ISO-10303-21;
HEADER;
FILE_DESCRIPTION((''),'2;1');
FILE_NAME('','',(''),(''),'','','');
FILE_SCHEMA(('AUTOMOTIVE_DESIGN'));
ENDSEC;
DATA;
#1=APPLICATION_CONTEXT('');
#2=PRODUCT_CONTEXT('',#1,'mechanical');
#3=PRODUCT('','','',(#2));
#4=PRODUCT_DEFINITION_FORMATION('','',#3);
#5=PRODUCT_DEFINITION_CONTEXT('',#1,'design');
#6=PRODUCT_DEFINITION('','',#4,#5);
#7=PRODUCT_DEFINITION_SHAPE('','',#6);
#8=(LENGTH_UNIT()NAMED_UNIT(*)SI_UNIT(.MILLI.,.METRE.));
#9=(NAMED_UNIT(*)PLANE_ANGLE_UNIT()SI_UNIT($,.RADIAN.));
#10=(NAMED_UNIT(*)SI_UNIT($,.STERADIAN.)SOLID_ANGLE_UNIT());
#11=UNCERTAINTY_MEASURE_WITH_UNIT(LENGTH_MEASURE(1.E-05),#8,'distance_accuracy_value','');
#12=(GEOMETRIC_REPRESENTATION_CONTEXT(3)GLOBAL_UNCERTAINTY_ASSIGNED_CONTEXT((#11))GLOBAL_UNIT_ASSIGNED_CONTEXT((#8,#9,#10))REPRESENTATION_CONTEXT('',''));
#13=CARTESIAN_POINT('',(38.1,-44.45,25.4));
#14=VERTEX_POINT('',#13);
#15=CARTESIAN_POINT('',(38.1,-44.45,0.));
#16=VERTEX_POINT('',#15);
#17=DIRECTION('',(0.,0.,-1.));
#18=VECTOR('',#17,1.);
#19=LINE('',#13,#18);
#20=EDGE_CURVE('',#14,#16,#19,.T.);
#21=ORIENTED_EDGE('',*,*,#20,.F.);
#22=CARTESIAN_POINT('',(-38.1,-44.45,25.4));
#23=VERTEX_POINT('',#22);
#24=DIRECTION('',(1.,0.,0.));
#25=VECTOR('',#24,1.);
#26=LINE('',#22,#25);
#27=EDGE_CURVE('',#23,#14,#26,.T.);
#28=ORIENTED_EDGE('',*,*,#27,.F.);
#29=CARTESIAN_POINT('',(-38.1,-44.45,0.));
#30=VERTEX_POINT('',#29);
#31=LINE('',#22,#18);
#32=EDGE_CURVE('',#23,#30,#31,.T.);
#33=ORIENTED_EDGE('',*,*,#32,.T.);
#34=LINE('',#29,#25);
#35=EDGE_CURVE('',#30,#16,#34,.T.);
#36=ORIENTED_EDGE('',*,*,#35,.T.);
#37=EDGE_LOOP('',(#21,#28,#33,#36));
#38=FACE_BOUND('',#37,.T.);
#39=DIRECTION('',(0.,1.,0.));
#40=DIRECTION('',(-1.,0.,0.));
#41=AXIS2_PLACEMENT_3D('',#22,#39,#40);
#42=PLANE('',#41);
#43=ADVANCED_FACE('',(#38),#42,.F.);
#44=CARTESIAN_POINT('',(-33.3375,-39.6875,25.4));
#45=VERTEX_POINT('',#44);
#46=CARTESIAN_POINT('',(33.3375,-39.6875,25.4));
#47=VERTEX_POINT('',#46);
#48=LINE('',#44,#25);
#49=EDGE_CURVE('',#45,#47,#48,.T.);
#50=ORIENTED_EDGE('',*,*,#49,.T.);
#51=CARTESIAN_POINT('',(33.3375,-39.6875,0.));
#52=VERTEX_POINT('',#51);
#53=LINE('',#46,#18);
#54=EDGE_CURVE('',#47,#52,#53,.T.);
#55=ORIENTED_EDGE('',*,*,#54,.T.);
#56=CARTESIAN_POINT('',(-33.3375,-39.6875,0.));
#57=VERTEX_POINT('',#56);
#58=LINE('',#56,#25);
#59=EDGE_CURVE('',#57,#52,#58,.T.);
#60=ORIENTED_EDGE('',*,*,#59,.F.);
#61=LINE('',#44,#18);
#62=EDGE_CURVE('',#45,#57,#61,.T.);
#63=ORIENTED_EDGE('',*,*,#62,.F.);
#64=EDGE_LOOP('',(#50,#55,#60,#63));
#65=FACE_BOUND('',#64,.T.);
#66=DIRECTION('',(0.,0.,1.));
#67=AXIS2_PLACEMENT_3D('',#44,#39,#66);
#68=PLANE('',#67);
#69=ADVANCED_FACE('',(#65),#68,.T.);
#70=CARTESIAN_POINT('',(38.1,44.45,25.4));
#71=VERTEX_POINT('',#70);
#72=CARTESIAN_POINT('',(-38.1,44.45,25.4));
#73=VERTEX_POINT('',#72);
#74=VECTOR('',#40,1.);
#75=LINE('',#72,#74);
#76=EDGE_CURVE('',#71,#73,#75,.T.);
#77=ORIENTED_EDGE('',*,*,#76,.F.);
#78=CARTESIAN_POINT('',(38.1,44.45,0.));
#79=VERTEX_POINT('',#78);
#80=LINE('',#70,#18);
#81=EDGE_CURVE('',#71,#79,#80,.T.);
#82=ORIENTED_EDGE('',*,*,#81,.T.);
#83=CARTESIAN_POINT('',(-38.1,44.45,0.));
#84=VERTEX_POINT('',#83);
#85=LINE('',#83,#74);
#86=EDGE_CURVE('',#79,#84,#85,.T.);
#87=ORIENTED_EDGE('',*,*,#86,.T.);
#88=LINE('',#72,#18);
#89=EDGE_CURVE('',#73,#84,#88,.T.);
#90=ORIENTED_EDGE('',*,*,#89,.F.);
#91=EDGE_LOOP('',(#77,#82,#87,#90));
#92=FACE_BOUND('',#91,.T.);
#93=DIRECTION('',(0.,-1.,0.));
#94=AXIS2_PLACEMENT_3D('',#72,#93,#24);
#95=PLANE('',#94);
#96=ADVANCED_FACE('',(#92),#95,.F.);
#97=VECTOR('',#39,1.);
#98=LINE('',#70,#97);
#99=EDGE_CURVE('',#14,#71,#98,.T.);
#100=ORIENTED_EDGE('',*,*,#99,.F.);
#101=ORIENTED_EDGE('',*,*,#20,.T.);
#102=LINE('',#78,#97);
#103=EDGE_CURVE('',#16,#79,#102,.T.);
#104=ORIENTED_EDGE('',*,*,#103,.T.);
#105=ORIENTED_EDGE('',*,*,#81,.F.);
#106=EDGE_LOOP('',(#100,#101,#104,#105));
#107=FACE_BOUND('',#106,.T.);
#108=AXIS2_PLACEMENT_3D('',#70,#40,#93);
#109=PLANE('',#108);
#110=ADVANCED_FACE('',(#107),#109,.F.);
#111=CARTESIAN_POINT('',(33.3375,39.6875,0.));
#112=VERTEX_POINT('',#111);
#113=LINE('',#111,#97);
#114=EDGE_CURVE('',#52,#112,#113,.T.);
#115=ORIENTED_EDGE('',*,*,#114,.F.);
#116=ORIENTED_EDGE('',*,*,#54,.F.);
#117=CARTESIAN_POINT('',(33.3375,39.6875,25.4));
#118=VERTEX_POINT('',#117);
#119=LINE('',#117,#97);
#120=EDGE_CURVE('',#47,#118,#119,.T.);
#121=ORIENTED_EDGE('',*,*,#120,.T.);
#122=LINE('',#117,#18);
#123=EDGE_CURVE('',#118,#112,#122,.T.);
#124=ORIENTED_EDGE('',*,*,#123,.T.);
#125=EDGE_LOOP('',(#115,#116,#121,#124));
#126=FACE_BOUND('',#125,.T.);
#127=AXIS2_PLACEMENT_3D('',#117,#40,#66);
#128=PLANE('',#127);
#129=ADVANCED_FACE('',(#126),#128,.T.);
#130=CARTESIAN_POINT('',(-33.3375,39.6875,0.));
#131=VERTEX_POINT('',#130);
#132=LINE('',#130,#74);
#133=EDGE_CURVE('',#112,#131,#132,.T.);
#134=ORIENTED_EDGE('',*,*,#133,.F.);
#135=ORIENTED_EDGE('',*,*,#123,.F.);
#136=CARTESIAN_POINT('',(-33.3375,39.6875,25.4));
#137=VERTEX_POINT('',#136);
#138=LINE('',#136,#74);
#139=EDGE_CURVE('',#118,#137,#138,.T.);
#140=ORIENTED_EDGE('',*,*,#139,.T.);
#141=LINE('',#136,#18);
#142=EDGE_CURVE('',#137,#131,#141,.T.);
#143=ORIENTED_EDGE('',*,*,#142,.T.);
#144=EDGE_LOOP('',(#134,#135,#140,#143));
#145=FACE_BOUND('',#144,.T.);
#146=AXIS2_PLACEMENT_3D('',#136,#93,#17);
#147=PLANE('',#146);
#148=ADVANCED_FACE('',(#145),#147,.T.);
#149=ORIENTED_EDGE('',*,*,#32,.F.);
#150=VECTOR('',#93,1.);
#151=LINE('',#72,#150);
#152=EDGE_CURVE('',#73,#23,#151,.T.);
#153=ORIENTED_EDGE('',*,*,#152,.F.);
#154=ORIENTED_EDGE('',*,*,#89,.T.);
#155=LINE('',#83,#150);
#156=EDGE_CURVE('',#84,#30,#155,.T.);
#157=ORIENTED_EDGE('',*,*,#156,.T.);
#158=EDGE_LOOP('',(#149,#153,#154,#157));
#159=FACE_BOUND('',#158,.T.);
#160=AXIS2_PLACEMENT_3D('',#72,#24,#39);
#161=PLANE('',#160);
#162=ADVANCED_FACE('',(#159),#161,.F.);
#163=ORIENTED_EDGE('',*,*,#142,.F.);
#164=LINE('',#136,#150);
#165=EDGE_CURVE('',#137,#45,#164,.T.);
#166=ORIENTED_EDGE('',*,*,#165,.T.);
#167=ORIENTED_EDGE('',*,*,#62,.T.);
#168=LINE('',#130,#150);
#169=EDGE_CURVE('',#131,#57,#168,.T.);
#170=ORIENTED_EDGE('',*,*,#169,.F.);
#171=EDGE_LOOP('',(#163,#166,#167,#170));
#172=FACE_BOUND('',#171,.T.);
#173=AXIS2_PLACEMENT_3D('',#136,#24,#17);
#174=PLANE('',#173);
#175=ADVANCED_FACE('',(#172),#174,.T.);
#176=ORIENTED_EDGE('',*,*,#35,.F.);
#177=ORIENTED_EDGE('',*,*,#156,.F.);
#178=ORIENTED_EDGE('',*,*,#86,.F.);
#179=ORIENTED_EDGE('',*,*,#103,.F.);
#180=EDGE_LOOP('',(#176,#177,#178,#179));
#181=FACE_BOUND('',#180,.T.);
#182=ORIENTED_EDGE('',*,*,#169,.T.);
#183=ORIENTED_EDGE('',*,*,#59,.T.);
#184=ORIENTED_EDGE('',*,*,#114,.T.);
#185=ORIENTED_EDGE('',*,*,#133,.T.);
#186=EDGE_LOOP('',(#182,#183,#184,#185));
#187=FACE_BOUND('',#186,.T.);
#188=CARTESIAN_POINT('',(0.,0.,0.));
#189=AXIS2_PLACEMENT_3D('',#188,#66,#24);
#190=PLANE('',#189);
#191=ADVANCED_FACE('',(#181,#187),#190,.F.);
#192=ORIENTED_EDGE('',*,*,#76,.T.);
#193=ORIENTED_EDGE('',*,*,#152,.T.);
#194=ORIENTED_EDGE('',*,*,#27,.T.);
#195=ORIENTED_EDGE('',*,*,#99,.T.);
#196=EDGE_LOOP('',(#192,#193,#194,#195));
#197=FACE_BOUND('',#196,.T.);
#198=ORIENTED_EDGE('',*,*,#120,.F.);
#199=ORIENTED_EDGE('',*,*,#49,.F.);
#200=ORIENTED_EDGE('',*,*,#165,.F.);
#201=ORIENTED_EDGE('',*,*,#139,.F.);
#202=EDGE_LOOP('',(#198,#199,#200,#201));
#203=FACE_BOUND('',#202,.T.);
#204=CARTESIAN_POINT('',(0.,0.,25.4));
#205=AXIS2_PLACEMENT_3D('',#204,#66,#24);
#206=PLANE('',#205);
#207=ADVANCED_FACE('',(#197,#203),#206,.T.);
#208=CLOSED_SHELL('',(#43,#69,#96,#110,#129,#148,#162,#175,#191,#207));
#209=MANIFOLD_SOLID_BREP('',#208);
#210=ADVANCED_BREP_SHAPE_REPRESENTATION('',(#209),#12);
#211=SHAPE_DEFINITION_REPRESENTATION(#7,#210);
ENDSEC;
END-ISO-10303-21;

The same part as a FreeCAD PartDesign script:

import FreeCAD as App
import Part
import Sketcher

V = App.Vector
Q = App.Units.Quantity


def add_polygon(sketch, points):
    """Adds a closed chain of lines whose ends are joined by coincident constraints."""
    first, n = sketch.GeometryCount, len(points)
    for a, b in zip(points, points[1:] + points[:1]):
        sketch.addGeometry(Part.LineSegment(App.Vector(*a, 0), App.Vector(*b, 0)), False)
    for i in range(n):
        sketch.addConstraint(Sketcher.Constraint("Coincident", first + i, 2, first + (i + 1) % n, 1))

doc = App.newDocument("Part")
body = doc.addObject("PartDesign::Body", "Body")

# Sketch on XY plane
sketch1 = body.newObject("Sketcher::SketchObject", "Sketch")
sketch1.AttachmentSupport = (doc.getObject("XY_Plane"), [""])
sketch1.MapMode = "FlatFace"
add_polygon(sketch1, [(-38, 44), (-38, -44), (38, -44), (38, 44)])  # lines 0-3
add_polygon(sketch1, [(33, -40), (-33, -40), (-33, 40), (33, 40)])  # lines 4-7
sketch1.addConstraint(Sketcher.Constraint("Vertical", 0))
sketch1.addConstraint(Sketcher.Constraint("Horizontal", 1))
sketch1.addConstraint(Sketcher.Constraint("Vertical", 2))
sketch1.addConstraint(Sketcher.Constraint("Horizontal", 3))
sketch1.addConstraint(Sketcher.Constraint("Horizontal", 4))
sketch1.addConstraint(Sketcher.Constraint("Vertical", 5))
sketch1.addConstraint(Sketcher.Constraint("Horizontal", 6))
sketch1.addConstraint(Sketcher.Constraint("Vertical", 7))
sketch1.addConstraint(Sketcher.Constraint("Symmetric", 0, 2, 2, 2, -1, 1))
sketch1.addConstraint(Sketcher.Constraint("Symmetric", 4, 2, 6, 2, -1, 1))
sketch1.addConstraint(Sketcher.Constraint("DistanceX", 1, 1, 1, 2, Q("3 in")))
sketch1.addConstraint(Sketcher.Constraint("DistanceY", 0, 2, 0, 1, Q("3.5 in")))
sketch1.addConstraint(Sketcher.Constraint("DistanceX", 4, 2, 4, 1, Q("2.625 in")))
sketch1.addConstraint(Sketcher.Constraint("DistanceY", 5, 1, 5, 2, Q("3.125 in")))
pad1 = body.newObject("PartDesign::Pad", "Pad")
pad1.Profile = sketch1
pad1.Length = Q("1 in")

doc.recompute()
